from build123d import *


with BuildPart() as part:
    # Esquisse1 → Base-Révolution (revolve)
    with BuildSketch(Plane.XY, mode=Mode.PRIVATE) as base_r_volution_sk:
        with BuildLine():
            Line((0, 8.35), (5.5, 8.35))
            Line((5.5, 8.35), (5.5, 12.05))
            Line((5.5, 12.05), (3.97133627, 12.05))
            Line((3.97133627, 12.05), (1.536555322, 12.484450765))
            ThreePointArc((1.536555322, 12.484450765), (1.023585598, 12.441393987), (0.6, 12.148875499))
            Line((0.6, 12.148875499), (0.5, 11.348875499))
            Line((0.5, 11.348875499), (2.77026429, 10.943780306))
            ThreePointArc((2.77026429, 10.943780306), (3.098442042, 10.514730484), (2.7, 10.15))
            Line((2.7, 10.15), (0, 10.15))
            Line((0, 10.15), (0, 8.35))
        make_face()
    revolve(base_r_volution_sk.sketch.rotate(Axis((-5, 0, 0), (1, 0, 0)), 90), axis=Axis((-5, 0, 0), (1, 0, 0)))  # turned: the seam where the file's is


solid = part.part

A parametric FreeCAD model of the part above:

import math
import FreeCAD as App
import Part
import Sketcher
from FreeCAD import Vector
Q = App.Units.Quantity

doc = App.newDocument("Part")
params = doc.addObject("Spreadsheet::Sheet", "Params")
for row, (alias, value) in enumerate([
    ("sketch1_radius", "1 mm"),
    ("sketch1_radius2", "0.4 mm"),
    ("sketch1_width", "5.5 mm"),
    ("sketch1_width2", "2.7 mm"),
    ("sketch1_height", "3.7 mm"),
    ("revolution_angle", "360 deg"),
], start=1):
    params.set(f"A{row}", alias)
    params.set(f"B{row}", "=" + value)
    params.setAlias(f"B{row}", alias)

body = doc.addObject("PartDesign::Body", "Body")

# Sketch on XY plane
sketch1 = body.newObject("Sketcher::SketchObject", "Sketch")
sketch1.AttachmentSupport = (doc.getObject("XY_Plane"), [""])
sketch1.MapMode = "FlatFace"
sketch1.addGeometry([
    Part.LineSegment(Vector(0, 8.35, 0), Vector(5.5, 8.35, 0)),  # 0
    Part.LineSegment(Vector(5.5, 8.35, 0), Vector(5.5, 12.05, 0)),  # 1
    Part.LineSegment(Vector(5.5, 12.05, 0), Vector(3.97, 12.05, 0)),  # 2
    Part.LineSegment(Vector(3.97, 12.05, 0), Vector(1.54, 12.48, 0)),  # 3
    Part.ArcOfCircle(Part.Circle(Vector(1.36, 11.5, 0), Vector(0, 0, 1), 1), math.radians(80), math.radians(140)),  # 4
    Part.LineSegment(Vector(0.6, 12.15, 0), Vector(0.5, 11.35, 0)),  # 5
    Part.LineSegment(Vector(0.5, 11.35, 0), Vector(2.77, 10.94, 0)),  # 6
    Part.ArcOfCircle(Part.Circle(Vector(2.7, 10.55, 0), Vector(0, 0, 1), 0.4), math.radians(-90), math.radians(80)),  # 7
    Part.LineSegment(Vector(2.7, 10.15, 0), Vector(0, 10.15, 0)),  # 8
    Part.LineSegment(Vector(0, 10.15, 0), Vector(0, 8.35, 0)),  # 9
], False)
sketch1.addConstraint([
    Sketcher.Constraint("Coincident", 0, 2, 1, 1),
    Sketcher.Constraint("Coincident", 1, 2, 2, 1),
    Sketcher.Constraint("Coincident", 2, 2, 3, 1),
    Sketcher.Constraint("Tangent", 3, 2, 4, 1),
    Sketcher.Constraint("Coincident", 4, 2, 5, 1),
    Sketcher.Constraint("Coincident", 5, 2, 6, 1),
    Sketcher.Constraint("Tangent", 6, 2, 7, 2),
    Sketcher.Constraint("Tangent", 7, 1, 8, 1),
    Sketcher.Constraint("Coincident", 8, 2, 9, 1),
    Sketcher.Constraint("Coincident", 9, 2, 0, 1),
    Sketcher.Constraint("Horizontal", 0),
    Sketcher.Constraint("Vertical", 1),
    Sketcher.Constraint("Horizontal", 2),
    Sketcher.Constraint("Horizontal", 8),
    Sketcher.Constraint("Vertical", 9),
    Sketcher.Constraint("PointOnObject", 8, 2, -2),
    Sketcher.Constraint("Parallel", 3, 6),
    Sketcher.Constraint("Radius", 4, Q("1 mm")),
    Sketcher.Constraint("Radius", 7, Q("0.4 mm")),
    Sketcher.Constraint("DistanceX", 0, 1, 0, 2, Q("5.5 mm")),
    Sketcher.Constraint("DistanceX", 8, 2, 8, 1, Q("2.7 mm")),
    Sketcher.Constraint("DistanceY", 1, 1, 1, 2, Q("3.7 mm")),
    Sketcher.Constraint("DistanceY", 9, 2, 9, 1, Q("1.8 mm")),
    Sketcher.Constraint("DistanceY", -1, 1, 4, 3, Q("11.5 mm")),
    Sketcher.Constraint("DistanceX", -1, 1, 4, 2, Q("0.6 mm")),
    Sketcher.Constraint("DistanceX", -1, 1, 5, 2, Q("0.5 mm")),
    Sketcher.Constraint("DistanceY", 5, 2, 4, 2, Q("0.8 mm")),
    Sketcher.Constraint("DistanceY", -1, 1, 7, 3, Q("10.55 mm")),
    Sketcher.Constraint("DistanceX", 2, 2, 2, 1, Q("1.528664 mm")),
])
sketch1.setExpression("Constraints[17]", "Params.sketch1_radius")
sketch1.setExpression("Constraints[18]", "Params.sketch1_radius2")
sketch1.setExpression("Constraints[19]", "Params.sketch1_width")
sketch1.setExpression("Constraints[20]", "Params.sketch1_width2")
sketch1.setExpression("Constraints[21]", "Params.sketch1_height")
revolution = body.newObject("PartDesign::Revolution", "Revolution")
revolution.Profile = sketch1
revolution.ReferenceAxis = (sketch1, ["H_Axis"])
revolution.setExpression("Angle", "Params.revolution_angle")

doc.recompute()
